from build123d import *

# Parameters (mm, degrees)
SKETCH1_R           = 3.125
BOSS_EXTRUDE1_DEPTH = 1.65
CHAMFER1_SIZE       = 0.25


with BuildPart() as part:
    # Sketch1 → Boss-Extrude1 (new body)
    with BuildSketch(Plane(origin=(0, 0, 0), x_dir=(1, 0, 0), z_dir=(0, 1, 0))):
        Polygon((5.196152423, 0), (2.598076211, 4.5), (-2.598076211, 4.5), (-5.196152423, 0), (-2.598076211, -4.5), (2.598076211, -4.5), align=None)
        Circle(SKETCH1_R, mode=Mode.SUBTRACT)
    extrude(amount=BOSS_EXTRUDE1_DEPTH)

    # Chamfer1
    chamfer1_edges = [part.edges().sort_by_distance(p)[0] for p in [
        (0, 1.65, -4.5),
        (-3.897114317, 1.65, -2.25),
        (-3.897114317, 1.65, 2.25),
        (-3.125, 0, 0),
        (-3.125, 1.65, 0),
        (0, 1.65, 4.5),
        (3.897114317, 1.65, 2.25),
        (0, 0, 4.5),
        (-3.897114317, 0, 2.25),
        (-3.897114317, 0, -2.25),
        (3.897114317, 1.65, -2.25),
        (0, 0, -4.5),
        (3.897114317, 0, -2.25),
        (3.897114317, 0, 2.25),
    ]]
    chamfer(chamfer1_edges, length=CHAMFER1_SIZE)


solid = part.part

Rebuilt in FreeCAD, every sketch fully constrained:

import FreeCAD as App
import Part
import Sketcher
Q = App.Units.Quantity


def edges_at(feature, points):
    """Names of the edges that pass closest to the given points."""
    edges = feature.Shape.Edges
    near = lambda p: min(range(len(edges)), key=lambda i: edges[i].distToShape(Part.Vertex(*p))[0])
    return sorted({f"Edge{near(p) + 1}" for p in points})

doc = App.newDocument("Part")
body = doc.addObject("PartDesign::Body", "Body")

# Sketch on XZ plane
sketch1 = doc.addObject("Sketcher::SketchObject", "Sketch")
body.addObject(sketch1)
sketch1.AttachmentSupport = (doc.XZ_Plane, [""])
sketch1.MapMode = "FlatFace"
sketch1.addGeometry([
    Part.LineSegment(App.Vector(5.2, 0, 0), App.Vector(2.6, -4.5, 0)),  # 0
    Part.LineSegment(App.Vector(2.6, -4.5, 0), App.Vector(-2.6, -4.5, 0)),  # 1
    Part.LineSegment(App.Vector(-2.6, -4.5, 0), App.Vector(-5.2, 0, 0)),  # 2
    Part.LineSegment(App.Vector(-5.2, 0, 0), App.Vector(-2.6, 4.5, 0)),  # 3
    Part.LineSegment(App.Vector(-2.6, 4.5, 0), App.Vector(2.6, 4.5, 0)),  # 4
    Part.LineSegment(App.Vector(2.6, 4.5, 0), App.Vector(5.2, 0, 0)),  # 5
    Part.Circle(App.Vector(0, 0, 0), App.Vector(0, 0, 1), 3.1),  # 6
], False)
sketch1.addConstraint([
    Sketcher.Constraint("Coincident", 0, 2, 1, 1),
    Sketcher.Constraint("Coincident", 1, 2, 2, 1),
    Sketcher.Constraint("Coincident", 2, 2, 3, 1),
    Sketcher.Constraint("Coincident", 3, 2, 4, 1),
    Sketcher.Constraint("Coincident", 4, 2, 5, 1),
    Sketcher.Constraint("Coincident", 5, 2, 0, 1),
    Sketcher.Constraint("Horizontal", 1),
    Sketcher.Constraint("Horizontal", 4),
    Sketcher.Constraint("Coincident", 6, 3, -1, 1),
    Sketcher.Constraint("Symmetric", 0, 2, 3, 2, -1, 1),
    Sketcher.Constraint("Symmetric", 2, 2, 5, 2, -1, 1),
    Sketcher.Constraint("PointOnObject", 2, 2, -1),
    Sketcher.Constraint("Parallel", 2, 5),
    Sketcher.Constraint("Vertical", 1, 2, 3, 2),
    Sketcher.Constraint("Diameter", 6, 6.25),
    Sketcher.Constraint("Angle", 0, Q("-120 deg")),
    Sketcher.Constraint("DistanceY", 1, 2, 3, 2, 9.0),
    Sketcher.Constraint("DistanceX", 1, 2, 1, 1, 5.196152),
])
pad1 = doc.addObject("PartDesign::Pad", "Pad")
body.addObject(pad1)
pad1.Profile = sketch1
pad1.Length = 1.65
pad1.Reversed = True
doc.recompute()

chamfer = doc.addObject("PartDesign::Chamfer", "Chamfer")
body.addObject(chamfer)
chamfer.Base = (pad1, edges_at(pad1, [
    (0, 1.65, -4.5),
    (-3.897, 1.65, -2.25),
    (-3.897, 1.65, 2.25),
    (-3.125, 0, 0),
    (-3.125, 1.65, 0),
    (0, 1.65, 4.5),
    (3.897, 1.65, 2.25),
    (0, 0, 4.5),
    (-3.897, 0, 2.25),
    (-3.897, 0, -2.25),
    (3.897, 1.65, -2.25),
    (0, 0, -4.5),
    (3.897, 0, -2.25),
    (3.897, 0, 2.25),
]))
chamfer.Size = 0.25

doc.recompute()
